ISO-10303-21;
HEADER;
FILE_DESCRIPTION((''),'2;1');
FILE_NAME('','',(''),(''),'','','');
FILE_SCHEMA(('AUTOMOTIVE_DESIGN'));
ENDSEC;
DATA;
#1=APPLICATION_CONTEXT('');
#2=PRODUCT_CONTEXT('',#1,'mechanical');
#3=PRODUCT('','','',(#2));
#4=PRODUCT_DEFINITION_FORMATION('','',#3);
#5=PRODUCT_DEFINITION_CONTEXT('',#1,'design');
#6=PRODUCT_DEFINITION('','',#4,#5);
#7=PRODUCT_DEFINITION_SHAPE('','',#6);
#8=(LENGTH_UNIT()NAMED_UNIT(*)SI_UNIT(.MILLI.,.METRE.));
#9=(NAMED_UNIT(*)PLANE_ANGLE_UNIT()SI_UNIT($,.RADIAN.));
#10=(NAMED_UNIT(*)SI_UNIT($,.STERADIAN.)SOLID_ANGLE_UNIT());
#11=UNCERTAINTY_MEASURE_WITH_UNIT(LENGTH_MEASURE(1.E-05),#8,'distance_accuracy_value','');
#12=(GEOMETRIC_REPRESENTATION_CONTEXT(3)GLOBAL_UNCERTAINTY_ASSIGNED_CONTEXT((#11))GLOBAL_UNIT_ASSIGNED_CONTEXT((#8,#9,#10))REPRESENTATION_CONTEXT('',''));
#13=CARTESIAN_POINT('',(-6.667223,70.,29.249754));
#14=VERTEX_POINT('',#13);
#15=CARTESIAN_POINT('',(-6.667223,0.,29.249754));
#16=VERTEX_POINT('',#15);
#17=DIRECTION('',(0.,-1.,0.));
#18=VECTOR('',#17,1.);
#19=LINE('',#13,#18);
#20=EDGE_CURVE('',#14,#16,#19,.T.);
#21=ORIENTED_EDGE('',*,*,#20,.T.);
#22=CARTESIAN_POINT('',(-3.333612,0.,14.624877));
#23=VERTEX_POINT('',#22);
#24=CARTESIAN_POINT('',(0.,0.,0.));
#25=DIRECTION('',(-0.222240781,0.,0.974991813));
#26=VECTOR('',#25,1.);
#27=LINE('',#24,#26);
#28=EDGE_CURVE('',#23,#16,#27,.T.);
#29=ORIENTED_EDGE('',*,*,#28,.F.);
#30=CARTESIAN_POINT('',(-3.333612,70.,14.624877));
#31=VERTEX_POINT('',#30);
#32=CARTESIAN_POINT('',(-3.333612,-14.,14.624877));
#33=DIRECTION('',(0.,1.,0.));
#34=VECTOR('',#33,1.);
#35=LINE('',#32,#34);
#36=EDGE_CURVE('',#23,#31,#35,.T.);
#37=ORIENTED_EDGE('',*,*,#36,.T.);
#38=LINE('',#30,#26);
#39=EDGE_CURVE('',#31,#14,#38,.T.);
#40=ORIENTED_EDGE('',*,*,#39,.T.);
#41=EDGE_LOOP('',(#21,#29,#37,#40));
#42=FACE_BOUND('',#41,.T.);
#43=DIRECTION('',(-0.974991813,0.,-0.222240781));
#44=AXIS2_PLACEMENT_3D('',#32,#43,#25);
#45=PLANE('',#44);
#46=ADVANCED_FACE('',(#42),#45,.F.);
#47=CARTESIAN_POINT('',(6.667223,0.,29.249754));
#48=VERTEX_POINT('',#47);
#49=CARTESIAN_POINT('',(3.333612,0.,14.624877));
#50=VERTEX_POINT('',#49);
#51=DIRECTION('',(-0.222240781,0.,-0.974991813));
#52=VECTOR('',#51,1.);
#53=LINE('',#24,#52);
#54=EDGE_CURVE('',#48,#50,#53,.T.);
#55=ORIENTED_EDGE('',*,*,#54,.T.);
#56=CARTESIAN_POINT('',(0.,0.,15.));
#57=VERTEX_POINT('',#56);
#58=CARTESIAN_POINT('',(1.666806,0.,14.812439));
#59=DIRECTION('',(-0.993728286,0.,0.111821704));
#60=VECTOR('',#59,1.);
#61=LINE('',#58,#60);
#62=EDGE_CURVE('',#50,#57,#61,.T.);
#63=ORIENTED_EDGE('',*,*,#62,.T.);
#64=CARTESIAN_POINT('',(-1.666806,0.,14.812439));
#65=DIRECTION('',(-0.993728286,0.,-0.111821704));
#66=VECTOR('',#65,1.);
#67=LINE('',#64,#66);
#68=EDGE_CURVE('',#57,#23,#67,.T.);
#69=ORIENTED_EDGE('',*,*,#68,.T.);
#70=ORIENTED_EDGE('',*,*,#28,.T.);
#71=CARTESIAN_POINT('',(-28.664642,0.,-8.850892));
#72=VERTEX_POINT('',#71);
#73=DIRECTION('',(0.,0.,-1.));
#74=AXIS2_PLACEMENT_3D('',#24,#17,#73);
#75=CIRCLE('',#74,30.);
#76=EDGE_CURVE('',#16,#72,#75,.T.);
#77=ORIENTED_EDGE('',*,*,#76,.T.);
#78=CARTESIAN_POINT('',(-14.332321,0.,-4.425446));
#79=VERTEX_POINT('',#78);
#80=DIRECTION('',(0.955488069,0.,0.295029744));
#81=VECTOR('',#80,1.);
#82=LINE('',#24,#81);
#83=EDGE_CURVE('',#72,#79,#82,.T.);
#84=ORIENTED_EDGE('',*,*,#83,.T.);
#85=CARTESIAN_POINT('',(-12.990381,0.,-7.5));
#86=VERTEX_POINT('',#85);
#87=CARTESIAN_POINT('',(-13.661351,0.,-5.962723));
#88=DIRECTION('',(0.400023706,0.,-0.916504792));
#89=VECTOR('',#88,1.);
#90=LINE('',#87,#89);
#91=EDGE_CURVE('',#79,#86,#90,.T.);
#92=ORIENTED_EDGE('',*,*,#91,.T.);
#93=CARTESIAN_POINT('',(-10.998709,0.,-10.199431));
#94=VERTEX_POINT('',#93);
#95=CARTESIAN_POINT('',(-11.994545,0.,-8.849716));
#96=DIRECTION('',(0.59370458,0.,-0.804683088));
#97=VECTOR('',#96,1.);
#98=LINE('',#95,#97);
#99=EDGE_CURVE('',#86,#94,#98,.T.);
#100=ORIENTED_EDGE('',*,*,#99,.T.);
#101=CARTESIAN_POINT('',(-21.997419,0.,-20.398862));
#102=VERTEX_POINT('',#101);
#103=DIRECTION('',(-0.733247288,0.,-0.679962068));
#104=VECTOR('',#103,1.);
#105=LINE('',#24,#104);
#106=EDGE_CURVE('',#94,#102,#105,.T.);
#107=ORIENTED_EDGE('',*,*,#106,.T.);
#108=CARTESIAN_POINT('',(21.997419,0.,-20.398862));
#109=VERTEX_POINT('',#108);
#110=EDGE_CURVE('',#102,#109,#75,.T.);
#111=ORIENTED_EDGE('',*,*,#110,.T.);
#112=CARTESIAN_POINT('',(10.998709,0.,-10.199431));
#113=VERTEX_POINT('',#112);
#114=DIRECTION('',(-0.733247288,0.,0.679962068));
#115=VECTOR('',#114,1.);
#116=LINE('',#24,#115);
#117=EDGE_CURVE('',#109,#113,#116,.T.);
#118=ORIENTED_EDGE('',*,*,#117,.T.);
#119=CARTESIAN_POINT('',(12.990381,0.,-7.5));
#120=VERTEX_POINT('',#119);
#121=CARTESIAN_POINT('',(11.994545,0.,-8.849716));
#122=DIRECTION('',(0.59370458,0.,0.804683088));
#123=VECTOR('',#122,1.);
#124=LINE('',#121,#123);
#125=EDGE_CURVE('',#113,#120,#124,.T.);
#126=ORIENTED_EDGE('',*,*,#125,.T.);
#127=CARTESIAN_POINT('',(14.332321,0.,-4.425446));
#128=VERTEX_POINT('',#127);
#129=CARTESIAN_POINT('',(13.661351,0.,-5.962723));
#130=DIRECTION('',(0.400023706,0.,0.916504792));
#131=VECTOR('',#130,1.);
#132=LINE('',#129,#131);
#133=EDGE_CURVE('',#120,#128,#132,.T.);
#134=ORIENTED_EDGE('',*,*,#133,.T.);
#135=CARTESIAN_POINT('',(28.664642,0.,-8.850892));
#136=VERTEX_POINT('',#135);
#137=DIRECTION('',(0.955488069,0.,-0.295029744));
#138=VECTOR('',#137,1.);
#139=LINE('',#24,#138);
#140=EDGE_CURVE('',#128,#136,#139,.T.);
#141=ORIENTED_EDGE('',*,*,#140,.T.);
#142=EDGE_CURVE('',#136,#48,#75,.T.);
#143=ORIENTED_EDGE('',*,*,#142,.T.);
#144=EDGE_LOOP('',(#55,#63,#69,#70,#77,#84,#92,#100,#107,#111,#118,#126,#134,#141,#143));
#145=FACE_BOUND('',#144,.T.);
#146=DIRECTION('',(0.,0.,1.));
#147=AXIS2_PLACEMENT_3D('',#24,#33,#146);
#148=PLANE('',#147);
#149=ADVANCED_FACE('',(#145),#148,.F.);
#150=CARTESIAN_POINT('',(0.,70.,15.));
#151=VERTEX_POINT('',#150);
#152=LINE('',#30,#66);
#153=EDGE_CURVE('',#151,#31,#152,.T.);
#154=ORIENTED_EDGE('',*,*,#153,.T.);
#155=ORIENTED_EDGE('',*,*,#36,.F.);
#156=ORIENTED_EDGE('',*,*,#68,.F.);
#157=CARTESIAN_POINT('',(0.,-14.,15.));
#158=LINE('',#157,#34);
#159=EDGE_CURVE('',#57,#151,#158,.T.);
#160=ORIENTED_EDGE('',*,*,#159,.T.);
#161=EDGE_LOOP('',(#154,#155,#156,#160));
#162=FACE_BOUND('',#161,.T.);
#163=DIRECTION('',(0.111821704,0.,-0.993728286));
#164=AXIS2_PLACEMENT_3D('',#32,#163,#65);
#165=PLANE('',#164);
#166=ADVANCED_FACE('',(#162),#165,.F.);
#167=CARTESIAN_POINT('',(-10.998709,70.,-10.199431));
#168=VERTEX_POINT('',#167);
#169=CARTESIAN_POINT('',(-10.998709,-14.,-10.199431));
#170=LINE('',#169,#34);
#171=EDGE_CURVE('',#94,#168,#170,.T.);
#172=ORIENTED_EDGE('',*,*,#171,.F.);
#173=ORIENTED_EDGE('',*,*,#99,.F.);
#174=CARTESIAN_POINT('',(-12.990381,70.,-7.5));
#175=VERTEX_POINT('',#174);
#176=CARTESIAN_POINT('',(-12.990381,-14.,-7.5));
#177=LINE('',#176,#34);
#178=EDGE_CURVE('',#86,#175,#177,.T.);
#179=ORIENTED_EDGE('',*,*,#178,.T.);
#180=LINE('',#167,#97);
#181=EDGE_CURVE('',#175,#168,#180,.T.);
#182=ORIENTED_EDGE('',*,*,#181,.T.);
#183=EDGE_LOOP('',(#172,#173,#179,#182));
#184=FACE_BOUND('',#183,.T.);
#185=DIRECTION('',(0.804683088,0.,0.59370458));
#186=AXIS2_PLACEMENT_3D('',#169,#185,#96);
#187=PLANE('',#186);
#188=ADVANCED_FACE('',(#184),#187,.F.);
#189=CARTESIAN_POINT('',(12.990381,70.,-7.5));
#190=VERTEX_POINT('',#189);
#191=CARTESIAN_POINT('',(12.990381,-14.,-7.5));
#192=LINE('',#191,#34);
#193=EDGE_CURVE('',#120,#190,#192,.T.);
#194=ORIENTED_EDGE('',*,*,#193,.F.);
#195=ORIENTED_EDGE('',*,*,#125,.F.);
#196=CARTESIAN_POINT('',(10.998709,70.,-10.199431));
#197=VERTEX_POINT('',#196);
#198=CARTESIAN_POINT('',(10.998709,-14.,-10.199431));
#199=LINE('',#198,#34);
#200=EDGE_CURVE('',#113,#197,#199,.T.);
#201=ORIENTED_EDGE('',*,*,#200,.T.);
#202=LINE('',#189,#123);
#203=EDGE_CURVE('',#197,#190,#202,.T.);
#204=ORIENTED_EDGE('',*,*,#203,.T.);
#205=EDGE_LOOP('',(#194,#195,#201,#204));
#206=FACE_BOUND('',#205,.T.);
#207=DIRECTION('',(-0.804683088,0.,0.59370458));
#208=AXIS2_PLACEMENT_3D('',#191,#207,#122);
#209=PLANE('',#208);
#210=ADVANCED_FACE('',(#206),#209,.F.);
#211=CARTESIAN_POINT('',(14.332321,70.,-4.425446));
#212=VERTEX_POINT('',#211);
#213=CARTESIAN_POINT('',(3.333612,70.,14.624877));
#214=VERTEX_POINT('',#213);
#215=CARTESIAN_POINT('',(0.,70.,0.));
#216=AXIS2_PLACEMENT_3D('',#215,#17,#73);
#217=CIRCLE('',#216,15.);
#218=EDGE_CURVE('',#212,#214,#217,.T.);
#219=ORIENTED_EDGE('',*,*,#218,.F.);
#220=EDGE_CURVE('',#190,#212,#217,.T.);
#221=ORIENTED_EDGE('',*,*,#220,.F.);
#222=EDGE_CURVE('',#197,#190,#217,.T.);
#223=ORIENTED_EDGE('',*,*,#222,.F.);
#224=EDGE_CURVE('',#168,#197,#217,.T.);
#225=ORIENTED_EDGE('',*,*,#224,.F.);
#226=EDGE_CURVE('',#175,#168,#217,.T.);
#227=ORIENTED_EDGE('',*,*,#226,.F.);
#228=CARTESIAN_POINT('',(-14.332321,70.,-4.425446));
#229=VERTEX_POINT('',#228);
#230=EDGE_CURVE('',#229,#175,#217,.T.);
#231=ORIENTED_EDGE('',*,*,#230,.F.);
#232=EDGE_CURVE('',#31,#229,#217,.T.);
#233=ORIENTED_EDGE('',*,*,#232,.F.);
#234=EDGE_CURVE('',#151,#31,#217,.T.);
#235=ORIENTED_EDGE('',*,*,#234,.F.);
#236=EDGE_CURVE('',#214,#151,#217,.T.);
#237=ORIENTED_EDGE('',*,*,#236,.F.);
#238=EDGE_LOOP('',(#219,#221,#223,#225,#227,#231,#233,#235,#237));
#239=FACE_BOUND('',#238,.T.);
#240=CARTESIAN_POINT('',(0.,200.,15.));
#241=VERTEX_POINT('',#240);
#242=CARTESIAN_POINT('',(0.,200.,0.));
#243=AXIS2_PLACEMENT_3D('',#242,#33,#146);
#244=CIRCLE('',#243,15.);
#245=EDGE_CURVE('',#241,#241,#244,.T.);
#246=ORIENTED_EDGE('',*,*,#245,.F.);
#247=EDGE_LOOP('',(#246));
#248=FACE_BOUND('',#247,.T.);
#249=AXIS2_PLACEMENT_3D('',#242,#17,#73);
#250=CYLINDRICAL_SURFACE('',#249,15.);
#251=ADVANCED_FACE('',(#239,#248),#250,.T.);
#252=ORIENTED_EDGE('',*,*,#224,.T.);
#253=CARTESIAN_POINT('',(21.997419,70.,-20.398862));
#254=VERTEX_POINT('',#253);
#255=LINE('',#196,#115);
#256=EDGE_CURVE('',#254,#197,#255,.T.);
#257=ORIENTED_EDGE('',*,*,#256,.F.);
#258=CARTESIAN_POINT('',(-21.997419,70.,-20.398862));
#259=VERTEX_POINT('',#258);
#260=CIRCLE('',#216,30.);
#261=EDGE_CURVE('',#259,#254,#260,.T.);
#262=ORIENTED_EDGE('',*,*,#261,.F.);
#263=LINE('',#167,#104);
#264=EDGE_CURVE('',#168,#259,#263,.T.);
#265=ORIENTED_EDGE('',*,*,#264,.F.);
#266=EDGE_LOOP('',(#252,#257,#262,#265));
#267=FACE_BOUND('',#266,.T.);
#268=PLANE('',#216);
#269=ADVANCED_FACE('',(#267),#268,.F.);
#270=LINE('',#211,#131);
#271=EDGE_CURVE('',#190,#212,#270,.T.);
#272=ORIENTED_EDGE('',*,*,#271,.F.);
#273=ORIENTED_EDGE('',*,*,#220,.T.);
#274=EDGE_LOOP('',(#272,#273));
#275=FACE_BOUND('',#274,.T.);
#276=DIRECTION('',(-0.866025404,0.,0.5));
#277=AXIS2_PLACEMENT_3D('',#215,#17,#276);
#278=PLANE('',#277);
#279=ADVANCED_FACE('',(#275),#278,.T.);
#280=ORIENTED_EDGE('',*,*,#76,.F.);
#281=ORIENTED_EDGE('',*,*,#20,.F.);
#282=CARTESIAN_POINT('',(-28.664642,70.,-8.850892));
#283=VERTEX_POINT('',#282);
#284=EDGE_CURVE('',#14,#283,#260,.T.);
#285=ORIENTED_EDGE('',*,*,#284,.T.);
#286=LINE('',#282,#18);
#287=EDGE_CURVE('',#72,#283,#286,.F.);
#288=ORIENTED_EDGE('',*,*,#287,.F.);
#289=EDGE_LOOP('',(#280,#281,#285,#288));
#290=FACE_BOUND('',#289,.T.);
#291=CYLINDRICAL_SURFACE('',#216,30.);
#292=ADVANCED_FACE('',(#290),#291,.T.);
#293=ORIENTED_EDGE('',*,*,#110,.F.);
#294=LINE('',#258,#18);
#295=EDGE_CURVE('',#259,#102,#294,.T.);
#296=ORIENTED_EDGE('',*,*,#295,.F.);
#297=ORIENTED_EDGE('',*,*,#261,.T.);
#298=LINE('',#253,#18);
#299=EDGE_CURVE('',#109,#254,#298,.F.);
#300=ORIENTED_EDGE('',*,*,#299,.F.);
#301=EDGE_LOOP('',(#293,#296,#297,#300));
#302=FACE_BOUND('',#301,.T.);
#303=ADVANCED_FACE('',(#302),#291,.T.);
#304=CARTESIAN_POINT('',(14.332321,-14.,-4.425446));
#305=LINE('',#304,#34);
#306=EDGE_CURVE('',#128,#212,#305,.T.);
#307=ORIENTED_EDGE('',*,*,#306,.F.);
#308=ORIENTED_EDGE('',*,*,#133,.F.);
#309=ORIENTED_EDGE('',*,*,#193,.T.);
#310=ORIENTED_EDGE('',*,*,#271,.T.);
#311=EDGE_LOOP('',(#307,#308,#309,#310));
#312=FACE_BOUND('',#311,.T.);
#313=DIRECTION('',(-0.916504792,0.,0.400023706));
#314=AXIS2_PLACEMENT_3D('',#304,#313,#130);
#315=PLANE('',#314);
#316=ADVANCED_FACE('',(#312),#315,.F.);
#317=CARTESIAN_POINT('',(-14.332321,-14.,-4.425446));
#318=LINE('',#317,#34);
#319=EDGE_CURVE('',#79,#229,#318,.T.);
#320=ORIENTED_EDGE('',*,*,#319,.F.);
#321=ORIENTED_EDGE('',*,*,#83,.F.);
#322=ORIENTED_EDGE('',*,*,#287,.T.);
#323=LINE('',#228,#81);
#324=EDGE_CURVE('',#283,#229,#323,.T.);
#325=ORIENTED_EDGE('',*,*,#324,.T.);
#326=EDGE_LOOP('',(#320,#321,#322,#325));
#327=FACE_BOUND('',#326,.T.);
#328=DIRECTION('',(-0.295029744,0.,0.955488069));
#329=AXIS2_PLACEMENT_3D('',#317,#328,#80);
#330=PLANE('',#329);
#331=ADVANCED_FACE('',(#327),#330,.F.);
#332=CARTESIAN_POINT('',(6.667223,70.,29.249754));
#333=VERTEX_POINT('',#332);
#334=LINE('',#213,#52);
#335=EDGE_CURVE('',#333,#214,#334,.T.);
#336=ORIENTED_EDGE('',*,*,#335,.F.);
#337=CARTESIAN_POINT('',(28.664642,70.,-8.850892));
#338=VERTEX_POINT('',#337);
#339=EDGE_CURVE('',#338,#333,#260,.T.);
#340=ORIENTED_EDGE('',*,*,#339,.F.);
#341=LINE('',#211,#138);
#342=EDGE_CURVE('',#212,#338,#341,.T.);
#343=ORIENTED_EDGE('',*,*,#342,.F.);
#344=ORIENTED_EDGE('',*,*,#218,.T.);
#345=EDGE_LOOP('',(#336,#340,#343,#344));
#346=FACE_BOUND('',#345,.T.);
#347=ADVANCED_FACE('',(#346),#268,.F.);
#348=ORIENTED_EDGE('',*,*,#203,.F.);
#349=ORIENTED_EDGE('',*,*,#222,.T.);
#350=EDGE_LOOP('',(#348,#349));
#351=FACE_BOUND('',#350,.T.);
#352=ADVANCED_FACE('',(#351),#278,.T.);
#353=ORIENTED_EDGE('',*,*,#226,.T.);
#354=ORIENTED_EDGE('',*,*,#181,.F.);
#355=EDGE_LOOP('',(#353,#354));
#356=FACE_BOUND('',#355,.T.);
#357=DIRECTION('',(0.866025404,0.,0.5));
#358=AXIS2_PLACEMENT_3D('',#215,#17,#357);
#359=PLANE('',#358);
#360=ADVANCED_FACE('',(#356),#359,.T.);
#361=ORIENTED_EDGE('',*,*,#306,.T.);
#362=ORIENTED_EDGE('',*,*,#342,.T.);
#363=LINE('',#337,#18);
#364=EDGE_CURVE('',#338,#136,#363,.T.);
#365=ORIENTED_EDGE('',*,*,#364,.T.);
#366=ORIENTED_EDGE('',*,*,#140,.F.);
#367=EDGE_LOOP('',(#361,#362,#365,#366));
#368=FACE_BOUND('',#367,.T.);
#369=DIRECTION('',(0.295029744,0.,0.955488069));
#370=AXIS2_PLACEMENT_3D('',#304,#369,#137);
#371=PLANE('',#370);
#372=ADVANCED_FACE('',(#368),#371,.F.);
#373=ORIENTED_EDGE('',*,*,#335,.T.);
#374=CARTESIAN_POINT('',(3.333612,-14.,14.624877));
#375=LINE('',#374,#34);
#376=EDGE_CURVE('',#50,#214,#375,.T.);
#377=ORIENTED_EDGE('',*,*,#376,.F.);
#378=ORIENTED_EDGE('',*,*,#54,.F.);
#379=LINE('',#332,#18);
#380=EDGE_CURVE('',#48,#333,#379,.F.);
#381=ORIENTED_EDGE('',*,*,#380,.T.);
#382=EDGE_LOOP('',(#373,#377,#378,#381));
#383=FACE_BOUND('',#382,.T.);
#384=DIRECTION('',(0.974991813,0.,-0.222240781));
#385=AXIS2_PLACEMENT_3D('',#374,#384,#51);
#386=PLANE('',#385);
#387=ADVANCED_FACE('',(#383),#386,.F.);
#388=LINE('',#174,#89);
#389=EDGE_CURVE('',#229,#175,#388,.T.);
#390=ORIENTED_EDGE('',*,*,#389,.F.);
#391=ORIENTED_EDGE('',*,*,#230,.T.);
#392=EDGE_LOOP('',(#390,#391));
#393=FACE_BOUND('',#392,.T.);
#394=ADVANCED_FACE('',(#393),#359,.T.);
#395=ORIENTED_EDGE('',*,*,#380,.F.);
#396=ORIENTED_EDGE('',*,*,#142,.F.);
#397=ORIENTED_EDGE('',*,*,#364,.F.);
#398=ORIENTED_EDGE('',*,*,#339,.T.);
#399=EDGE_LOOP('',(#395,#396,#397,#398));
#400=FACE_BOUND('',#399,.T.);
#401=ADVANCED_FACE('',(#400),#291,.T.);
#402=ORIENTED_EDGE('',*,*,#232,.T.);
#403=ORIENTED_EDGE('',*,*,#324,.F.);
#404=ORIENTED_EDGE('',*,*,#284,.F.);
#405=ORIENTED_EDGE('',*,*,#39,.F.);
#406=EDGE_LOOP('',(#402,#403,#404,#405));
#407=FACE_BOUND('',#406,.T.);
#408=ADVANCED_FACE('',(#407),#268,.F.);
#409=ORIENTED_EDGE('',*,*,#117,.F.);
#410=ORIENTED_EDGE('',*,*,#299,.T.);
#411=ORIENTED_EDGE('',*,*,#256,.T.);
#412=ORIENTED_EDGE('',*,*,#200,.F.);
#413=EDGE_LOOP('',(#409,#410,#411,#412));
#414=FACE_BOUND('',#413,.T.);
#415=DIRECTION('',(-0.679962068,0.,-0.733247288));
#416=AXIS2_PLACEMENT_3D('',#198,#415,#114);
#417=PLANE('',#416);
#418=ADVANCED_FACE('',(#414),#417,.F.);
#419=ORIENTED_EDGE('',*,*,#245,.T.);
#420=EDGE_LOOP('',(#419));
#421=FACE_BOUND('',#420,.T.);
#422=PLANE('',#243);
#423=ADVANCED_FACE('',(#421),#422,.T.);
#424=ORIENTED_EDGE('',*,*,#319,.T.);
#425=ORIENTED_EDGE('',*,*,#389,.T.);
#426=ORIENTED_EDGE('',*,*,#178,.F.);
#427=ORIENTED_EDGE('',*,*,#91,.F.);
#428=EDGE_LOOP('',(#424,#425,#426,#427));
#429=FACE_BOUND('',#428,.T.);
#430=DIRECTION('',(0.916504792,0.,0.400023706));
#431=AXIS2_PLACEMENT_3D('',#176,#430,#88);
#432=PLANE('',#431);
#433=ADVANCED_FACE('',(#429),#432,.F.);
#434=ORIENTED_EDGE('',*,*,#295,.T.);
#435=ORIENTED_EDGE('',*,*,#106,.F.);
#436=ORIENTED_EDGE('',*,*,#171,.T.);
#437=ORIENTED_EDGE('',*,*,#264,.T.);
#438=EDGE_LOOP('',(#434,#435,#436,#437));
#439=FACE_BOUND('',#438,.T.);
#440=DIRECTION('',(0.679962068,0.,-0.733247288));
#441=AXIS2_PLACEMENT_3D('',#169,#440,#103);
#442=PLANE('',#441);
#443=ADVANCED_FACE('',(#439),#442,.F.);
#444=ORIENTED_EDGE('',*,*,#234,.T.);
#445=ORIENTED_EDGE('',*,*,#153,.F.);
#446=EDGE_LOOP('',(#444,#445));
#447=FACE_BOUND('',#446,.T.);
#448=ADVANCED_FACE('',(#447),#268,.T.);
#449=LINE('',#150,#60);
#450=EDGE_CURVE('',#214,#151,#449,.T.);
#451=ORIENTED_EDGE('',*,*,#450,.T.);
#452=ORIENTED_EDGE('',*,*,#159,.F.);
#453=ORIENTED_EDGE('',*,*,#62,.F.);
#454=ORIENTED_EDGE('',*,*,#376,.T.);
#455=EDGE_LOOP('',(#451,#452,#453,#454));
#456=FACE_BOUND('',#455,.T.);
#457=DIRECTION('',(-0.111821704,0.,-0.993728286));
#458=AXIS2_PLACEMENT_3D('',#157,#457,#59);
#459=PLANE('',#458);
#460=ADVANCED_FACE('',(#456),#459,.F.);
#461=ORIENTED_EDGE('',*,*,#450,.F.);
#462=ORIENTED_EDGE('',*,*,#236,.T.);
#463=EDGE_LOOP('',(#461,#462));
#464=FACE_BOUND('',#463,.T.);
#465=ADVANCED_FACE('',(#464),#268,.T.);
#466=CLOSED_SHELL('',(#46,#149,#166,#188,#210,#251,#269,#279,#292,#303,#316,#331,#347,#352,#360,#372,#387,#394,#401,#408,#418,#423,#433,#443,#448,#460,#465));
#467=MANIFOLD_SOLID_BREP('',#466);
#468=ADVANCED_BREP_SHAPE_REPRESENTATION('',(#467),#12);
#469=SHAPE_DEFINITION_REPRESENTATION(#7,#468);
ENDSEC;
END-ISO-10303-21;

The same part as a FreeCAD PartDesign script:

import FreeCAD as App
import Part
import Sketcher
from FreeCAD import Vector
Q = App.Units.Quantity

doc = App.newDocument("Part")
body = doc.addObject("PartDesign::Body", "Body")

sketch1 = doc.addObject("Sketcher::SketchObject", "Sketch")
body.addObject(sketch1)
sketch1.AttachmentSupport = (doc.XZ_Plane, [""])
sketch1.MapMode = "FlatFace"
sketch1.addGeometry(Part.Circle(Vector(0, 0, 0), Vector(0, 0, 1), 15), False)
sketch1.addConstraint([
    Sketcher.Constraint("Coincident", 0, 3, -1, 1),
    Sketcher.Constraint("Diameter", 0, Q("30 mm")),
])
pad1 = doc.addObject("PartDesign::Pad", "Pad")
body.addObject(pad1)
pad1.Profile = sketch1
pad1.Length = 200
pad1.Reversed = True

sketch2 = doc.addObject("Sketcher::SketchObject", "Sketch001")
body.addObject(sketch2)
sketch2.AttachmentSupport = (doc.XZ_Plane, [""])
sketch2.MapMode = "FlatFace"
sketch2.addGeometry([
    Part.Circle(Vector(0, 0, 0), Vector(0, 0, 1), 30),
    Part.Circle(Vector(0, 0, 0), Vector(0, 0, 1), 15),
], False)
sketch2.addConstraint([
    Sketcher.Constraint("Coincident", 0, 3, -1, 1),
    Sketcher.Constraint("Coincident", 1, 3, -1, 1),
    Sketcher.Constraint("Diameter", 0, Q("60 mm")),
    Sketcher.Constraint("Diameter", 1, Q("30 mm")),
])
pad2 = doc.addObject("PartDesign::Pad", "Pad001")
body.addObject(pad2)
pad2.Profile = sketch2
pad2.Length = 70
pad2.Reversed = True

sketch3 = doc.addObject("Sketcher::SketchObject", "Sketch002")
body.addObject(sketch3)
sketch3.AttachmentSupport = (doc.XZ_Plane, [""])
sketch3.MapMode = "FlatFace"
sketch3.AttachmentOffset = App.Placement(Vector(0, 0, -70), App.Rotation())
sketch3.addGeometry([
    Part.LineSegment(Vector(-3.3, 14.6, 0), Vector(-7.4, 32.5, 0)),
    Part.LineSegment(Vector(-7.4, 32.5, 0), Vector(7.4, 32.5, 0)),
    Part.LineSegment(Vector(7.4, 32.5, 0), Vector(3.3, 14.6, 0)),
    Part.LineSegment(Vector(3.3, 14.6, 0), Vector(0, 15, 0)),
    Part.LineSegment(Vector(0, 15, 0), Vector(-3.3, 14.6, 0)),
], False)
sketch3.addConstraint([
    Sketcher.Constraint("Coincident", 0, 2, 1, 1),
    Sketcher.Constraint("Coincident", 1, 2, 2, 1),
    Sketcher.Constraint("Coincident", 2, 2, 3, 1),
    Sketcher.Constraint("Coincident", 3, 2, 4, 1),
    Sketcher.Constraint("Coincident", 4, 2, 0, 1),
    Sketcher.Constraint("Horizontal", 1),
    Sketcher.Constraint("Symmetric", 2, 2, 4, 2, -2),
    Sketcher.Constraint("PointOnObject", 3, 2, -2),
    Sketcher.Constraint("Equal", 0, 2),
    Sketcher.Constraint("DistanceY", -1, 1, 3, 2, Q("15 mm")),
    Sketcher.Constraint("DistanceX", 1, 1, 1, 2, Q("14.830718 mm")),
    Sketcher.Constraint("DistanceY", -1, 1, 0, 2, Q("32.531899 mm")),
    Sketcher.Constraint("Distance", 0, Q("18.36633 mm")),
    Sketcher.Constraint("Distance", 3, Q("3.354651 mm")),
])
pocket1 = doc.addObject("PartDesign::Pocket", "Pocket")
body.addObject(pocket1)
pocket1.Profile = sketch3
pocket1.Length = 84
pocket1.Reversed = True
doc.recompute()

polarpattern = doc.addObject("PartDesign::PolarPattern", "PolarPattern")
body.addObject(polarpattern)
polarpattern.Originals = [pocket1]
polarpattern.Axis = (doc.Y_Axis, [""])
polarpattern.Angle = 360
polarpattern.Occurrences = 3
body.Tip = polarpattern

doc.recompute()
